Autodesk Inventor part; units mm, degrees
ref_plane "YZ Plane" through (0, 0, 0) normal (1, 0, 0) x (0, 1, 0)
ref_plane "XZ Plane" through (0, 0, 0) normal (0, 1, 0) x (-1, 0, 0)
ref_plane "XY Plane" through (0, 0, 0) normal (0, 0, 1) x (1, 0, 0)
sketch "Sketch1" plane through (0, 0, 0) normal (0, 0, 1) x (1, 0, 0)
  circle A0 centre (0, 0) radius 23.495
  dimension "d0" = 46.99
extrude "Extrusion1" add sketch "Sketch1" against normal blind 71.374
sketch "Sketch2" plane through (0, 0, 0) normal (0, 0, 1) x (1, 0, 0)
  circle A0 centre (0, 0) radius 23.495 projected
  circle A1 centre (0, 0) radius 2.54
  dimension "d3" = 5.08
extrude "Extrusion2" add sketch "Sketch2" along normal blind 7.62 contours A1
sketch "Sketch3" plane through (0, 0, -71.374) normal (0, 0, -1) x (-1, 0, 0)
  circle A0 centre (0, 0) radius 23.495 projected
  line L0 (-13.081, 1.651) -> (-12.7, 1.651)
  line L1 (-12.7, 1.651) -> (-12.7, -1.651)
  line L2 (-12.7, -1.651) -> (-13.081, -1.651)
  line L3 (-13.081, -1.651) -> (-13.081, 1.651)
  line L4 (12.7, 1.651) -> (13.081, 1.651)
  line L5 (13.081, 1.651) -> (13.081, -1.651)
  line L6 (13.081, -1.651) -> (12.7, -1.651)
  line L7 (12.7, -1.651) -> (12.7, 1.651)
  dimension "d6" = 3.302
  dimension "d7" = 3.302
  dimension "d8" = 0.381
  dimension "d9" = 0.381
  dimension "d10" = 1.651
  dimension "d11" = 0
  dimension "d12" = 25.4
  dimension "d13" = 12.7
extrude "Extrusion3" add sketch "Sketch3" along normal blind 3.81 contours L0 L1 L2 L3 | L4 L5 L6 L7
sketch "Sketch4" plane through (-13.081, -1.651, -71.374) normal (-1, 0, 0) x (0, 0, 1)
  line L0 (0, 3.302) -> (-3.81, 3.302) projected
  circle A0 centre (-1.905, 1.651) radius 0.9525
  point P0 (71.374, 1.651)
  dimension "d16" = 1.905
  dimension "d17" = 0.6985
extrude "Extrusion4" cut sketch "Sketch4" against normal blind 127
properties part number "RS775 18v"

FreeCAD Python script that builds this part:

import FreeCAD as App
import Part
import Sketcher

V = App.Vector
Q = App.Units.Quantity


def add_polygon(sketch, points):
    """Adds a closed chain of lines whose ends are joined by coincident constraints."""
    first, n = sketch.GeometryCount, len(points)
    for a, b in zip(points, points[1:] + points[:1]):
        sketch.addGeometry(Part.LineSegment(App.Vector(*a, 0), App.Vector(*b, 0)), False)
    for i in range(n):
        sketch.addConstraint(Sketcher.Constraint("Coincident", first + i, 2, first + (i + 1) % n, 1))

doc = App.newDocument("Part")
body = doc.addObject("PartDesign::Body", "Body")

# Sketch on XY plane
sketch1 = body.newObject("Sketcher::SketchObject", "Sketch")
sketch1.AttachmentSupport = (doc.getObject("XY_Plane"), [""])
sketch1.MapMode = "FlatFace"
sketch1.addGeometry(Part.Circle(V(0, 0, 0), V(0, 0, 1), 23.495), False)
sketch1.addConstraint(Sketcher.Constraint("Coincident", 0, 3, -1, 1))
sketch1.addConstraint(Sketcher.Constraint("Diameter", 0, Q("1.85 in")))
pad1 = body.newObject("PartDesign::Pad", "Pad")
pad1.Profile = sketch1
pad1.Length = Q("2.81 in")
pad1.Reversed = True

# Sketch on XY plane
sketch2 = body.newObject("Sketcher::SketchObject", "Sketch001")
sketch2.AttachmentSupport = (doc.getObject("XY_Plane"), [""])
sketch2.MapMode = "FlatFace"
sketch2.addGeometry(Part.Circle(V(0, 0, 0), V(0, 0, 1), 2.54), False)
sketch2.addConstraint(Sketcher.Constraint("Coincident", 0, 3, -1, 1))
sketch2.addConstraint(Sketcher.Constraint("Diameter", 0, Q("0.2 in")))
pad2 = body.newObject("PartDesign::Pad", "Pad001")
pad2.Profile = sketch2
pad2.Length = Q("0.3 in")

# Sketch on XY plane
sketch3 = body.newObject("Sketcher::SketchObject", "Sketch002")
sketch3.AttachmentSupport = (doc.getObject("XY_Plane"), [""])
sketch3.MapMode = "FlatFace"
sketch3.AttachmentOffset = App.Placement(V(0, 0, -2.81 * 25.4), App.Rotation())
add_polygon(sketch3, [(12.7, 1.651), (13.081, 1.651), (13.081, -1.651), (12.7, -1.651)])  # lines 0-3
add_polygon(sketch3, [(-13.081, 1.651), (-12.7, 1.651), (-12.7, -1.651), (-13.081, -1.651)])  # lines 4-7
sketch3.addConstraint(Sketcher.Constraint("Horizontal", 0))
sketch3.addConstraint(Sketcher.Constraint("Vertical", 1))
sketch3.addConstraint(Sketcher.Constraint("Horizontal", 2))
sketch3.addConstraint(Sketcher.Constraint("Vertical", 3))
sketch3.addConstraint(Sketcher.Constraint("Horizontal", 4))
sketch3.addConstraint(Sketcher.Constraint("Vertical", 5))
sketch3.addConstraint(Sketcher.Constraint("Horizontal", 6))
sketch3.addConstraint(Sketcher.Constraint("Vertical", 7))
sketch3.addConstraint(Sketcher.Constraint("Symmetric", 2, 2, 4, 2, -1, 1))
sketch3.addConstraint(Sketcher.Constraint("Symmetric", 0, 2, 6, 2, -1, 1))
sketch3.addConstraint(Sketcher.Constraint("Horizontal", 3, 2, 4, 2))
sketch3.addConstraint(Sketcher.Constraint("DistanceX", 4, 2, 3, 2, Q("1 in")))
sketch3.addConstraint(Sketcher.Constraint("DistanceY", 1, 2, 1, 1, Q("0.13 in")))
sketch3.addConstraint(Sketcher.Constraint("DistanceX", 0, 1, 0, 2, Q("0.015 in")))
pad3 = body.newObject("PartDesign::Pad", "Pad002")
pad3.Profile = sketch3
pad3.Length = Q("0.15 in")
pad3.Reversed = True

# Sketch on YZ plane
sketch4 = body.newObject("Sketcher::SketchObject", "Sketch003")
sketch4.AttachmentSupport = (doc.getObject("YZ_Plane"), [""])
sketch4.MapMode = "FlatFace"
sketch4.AttachmentOffset = App.Placement(V(0, 0, -0.515 * 25.4), App.Rotation())
sketch4.addGeometry(Part.Circle(V(0, -73.279, 0), V(0, 0, 1), 0.9525), False)
sketch4.addConstraint(Sketcher.Constraint("PointOnObject", 0, 3, -2))
sketch4.addConstraint(Sketcher.Constraint("Diameter", 0, Q("0.075 in")))
sketch4.addConstraint(Sketcher.Constraint("DistanceY", 0, 3, -1, 1, Q("2.885 in")))
pocket1 = body.newObject("PartDesign::Pocket", "Pocket")
pocket1.Profile = sketch4
pocket1.Length = Q("5 in")
pocket1.Reversed = True

doc.recompute()
